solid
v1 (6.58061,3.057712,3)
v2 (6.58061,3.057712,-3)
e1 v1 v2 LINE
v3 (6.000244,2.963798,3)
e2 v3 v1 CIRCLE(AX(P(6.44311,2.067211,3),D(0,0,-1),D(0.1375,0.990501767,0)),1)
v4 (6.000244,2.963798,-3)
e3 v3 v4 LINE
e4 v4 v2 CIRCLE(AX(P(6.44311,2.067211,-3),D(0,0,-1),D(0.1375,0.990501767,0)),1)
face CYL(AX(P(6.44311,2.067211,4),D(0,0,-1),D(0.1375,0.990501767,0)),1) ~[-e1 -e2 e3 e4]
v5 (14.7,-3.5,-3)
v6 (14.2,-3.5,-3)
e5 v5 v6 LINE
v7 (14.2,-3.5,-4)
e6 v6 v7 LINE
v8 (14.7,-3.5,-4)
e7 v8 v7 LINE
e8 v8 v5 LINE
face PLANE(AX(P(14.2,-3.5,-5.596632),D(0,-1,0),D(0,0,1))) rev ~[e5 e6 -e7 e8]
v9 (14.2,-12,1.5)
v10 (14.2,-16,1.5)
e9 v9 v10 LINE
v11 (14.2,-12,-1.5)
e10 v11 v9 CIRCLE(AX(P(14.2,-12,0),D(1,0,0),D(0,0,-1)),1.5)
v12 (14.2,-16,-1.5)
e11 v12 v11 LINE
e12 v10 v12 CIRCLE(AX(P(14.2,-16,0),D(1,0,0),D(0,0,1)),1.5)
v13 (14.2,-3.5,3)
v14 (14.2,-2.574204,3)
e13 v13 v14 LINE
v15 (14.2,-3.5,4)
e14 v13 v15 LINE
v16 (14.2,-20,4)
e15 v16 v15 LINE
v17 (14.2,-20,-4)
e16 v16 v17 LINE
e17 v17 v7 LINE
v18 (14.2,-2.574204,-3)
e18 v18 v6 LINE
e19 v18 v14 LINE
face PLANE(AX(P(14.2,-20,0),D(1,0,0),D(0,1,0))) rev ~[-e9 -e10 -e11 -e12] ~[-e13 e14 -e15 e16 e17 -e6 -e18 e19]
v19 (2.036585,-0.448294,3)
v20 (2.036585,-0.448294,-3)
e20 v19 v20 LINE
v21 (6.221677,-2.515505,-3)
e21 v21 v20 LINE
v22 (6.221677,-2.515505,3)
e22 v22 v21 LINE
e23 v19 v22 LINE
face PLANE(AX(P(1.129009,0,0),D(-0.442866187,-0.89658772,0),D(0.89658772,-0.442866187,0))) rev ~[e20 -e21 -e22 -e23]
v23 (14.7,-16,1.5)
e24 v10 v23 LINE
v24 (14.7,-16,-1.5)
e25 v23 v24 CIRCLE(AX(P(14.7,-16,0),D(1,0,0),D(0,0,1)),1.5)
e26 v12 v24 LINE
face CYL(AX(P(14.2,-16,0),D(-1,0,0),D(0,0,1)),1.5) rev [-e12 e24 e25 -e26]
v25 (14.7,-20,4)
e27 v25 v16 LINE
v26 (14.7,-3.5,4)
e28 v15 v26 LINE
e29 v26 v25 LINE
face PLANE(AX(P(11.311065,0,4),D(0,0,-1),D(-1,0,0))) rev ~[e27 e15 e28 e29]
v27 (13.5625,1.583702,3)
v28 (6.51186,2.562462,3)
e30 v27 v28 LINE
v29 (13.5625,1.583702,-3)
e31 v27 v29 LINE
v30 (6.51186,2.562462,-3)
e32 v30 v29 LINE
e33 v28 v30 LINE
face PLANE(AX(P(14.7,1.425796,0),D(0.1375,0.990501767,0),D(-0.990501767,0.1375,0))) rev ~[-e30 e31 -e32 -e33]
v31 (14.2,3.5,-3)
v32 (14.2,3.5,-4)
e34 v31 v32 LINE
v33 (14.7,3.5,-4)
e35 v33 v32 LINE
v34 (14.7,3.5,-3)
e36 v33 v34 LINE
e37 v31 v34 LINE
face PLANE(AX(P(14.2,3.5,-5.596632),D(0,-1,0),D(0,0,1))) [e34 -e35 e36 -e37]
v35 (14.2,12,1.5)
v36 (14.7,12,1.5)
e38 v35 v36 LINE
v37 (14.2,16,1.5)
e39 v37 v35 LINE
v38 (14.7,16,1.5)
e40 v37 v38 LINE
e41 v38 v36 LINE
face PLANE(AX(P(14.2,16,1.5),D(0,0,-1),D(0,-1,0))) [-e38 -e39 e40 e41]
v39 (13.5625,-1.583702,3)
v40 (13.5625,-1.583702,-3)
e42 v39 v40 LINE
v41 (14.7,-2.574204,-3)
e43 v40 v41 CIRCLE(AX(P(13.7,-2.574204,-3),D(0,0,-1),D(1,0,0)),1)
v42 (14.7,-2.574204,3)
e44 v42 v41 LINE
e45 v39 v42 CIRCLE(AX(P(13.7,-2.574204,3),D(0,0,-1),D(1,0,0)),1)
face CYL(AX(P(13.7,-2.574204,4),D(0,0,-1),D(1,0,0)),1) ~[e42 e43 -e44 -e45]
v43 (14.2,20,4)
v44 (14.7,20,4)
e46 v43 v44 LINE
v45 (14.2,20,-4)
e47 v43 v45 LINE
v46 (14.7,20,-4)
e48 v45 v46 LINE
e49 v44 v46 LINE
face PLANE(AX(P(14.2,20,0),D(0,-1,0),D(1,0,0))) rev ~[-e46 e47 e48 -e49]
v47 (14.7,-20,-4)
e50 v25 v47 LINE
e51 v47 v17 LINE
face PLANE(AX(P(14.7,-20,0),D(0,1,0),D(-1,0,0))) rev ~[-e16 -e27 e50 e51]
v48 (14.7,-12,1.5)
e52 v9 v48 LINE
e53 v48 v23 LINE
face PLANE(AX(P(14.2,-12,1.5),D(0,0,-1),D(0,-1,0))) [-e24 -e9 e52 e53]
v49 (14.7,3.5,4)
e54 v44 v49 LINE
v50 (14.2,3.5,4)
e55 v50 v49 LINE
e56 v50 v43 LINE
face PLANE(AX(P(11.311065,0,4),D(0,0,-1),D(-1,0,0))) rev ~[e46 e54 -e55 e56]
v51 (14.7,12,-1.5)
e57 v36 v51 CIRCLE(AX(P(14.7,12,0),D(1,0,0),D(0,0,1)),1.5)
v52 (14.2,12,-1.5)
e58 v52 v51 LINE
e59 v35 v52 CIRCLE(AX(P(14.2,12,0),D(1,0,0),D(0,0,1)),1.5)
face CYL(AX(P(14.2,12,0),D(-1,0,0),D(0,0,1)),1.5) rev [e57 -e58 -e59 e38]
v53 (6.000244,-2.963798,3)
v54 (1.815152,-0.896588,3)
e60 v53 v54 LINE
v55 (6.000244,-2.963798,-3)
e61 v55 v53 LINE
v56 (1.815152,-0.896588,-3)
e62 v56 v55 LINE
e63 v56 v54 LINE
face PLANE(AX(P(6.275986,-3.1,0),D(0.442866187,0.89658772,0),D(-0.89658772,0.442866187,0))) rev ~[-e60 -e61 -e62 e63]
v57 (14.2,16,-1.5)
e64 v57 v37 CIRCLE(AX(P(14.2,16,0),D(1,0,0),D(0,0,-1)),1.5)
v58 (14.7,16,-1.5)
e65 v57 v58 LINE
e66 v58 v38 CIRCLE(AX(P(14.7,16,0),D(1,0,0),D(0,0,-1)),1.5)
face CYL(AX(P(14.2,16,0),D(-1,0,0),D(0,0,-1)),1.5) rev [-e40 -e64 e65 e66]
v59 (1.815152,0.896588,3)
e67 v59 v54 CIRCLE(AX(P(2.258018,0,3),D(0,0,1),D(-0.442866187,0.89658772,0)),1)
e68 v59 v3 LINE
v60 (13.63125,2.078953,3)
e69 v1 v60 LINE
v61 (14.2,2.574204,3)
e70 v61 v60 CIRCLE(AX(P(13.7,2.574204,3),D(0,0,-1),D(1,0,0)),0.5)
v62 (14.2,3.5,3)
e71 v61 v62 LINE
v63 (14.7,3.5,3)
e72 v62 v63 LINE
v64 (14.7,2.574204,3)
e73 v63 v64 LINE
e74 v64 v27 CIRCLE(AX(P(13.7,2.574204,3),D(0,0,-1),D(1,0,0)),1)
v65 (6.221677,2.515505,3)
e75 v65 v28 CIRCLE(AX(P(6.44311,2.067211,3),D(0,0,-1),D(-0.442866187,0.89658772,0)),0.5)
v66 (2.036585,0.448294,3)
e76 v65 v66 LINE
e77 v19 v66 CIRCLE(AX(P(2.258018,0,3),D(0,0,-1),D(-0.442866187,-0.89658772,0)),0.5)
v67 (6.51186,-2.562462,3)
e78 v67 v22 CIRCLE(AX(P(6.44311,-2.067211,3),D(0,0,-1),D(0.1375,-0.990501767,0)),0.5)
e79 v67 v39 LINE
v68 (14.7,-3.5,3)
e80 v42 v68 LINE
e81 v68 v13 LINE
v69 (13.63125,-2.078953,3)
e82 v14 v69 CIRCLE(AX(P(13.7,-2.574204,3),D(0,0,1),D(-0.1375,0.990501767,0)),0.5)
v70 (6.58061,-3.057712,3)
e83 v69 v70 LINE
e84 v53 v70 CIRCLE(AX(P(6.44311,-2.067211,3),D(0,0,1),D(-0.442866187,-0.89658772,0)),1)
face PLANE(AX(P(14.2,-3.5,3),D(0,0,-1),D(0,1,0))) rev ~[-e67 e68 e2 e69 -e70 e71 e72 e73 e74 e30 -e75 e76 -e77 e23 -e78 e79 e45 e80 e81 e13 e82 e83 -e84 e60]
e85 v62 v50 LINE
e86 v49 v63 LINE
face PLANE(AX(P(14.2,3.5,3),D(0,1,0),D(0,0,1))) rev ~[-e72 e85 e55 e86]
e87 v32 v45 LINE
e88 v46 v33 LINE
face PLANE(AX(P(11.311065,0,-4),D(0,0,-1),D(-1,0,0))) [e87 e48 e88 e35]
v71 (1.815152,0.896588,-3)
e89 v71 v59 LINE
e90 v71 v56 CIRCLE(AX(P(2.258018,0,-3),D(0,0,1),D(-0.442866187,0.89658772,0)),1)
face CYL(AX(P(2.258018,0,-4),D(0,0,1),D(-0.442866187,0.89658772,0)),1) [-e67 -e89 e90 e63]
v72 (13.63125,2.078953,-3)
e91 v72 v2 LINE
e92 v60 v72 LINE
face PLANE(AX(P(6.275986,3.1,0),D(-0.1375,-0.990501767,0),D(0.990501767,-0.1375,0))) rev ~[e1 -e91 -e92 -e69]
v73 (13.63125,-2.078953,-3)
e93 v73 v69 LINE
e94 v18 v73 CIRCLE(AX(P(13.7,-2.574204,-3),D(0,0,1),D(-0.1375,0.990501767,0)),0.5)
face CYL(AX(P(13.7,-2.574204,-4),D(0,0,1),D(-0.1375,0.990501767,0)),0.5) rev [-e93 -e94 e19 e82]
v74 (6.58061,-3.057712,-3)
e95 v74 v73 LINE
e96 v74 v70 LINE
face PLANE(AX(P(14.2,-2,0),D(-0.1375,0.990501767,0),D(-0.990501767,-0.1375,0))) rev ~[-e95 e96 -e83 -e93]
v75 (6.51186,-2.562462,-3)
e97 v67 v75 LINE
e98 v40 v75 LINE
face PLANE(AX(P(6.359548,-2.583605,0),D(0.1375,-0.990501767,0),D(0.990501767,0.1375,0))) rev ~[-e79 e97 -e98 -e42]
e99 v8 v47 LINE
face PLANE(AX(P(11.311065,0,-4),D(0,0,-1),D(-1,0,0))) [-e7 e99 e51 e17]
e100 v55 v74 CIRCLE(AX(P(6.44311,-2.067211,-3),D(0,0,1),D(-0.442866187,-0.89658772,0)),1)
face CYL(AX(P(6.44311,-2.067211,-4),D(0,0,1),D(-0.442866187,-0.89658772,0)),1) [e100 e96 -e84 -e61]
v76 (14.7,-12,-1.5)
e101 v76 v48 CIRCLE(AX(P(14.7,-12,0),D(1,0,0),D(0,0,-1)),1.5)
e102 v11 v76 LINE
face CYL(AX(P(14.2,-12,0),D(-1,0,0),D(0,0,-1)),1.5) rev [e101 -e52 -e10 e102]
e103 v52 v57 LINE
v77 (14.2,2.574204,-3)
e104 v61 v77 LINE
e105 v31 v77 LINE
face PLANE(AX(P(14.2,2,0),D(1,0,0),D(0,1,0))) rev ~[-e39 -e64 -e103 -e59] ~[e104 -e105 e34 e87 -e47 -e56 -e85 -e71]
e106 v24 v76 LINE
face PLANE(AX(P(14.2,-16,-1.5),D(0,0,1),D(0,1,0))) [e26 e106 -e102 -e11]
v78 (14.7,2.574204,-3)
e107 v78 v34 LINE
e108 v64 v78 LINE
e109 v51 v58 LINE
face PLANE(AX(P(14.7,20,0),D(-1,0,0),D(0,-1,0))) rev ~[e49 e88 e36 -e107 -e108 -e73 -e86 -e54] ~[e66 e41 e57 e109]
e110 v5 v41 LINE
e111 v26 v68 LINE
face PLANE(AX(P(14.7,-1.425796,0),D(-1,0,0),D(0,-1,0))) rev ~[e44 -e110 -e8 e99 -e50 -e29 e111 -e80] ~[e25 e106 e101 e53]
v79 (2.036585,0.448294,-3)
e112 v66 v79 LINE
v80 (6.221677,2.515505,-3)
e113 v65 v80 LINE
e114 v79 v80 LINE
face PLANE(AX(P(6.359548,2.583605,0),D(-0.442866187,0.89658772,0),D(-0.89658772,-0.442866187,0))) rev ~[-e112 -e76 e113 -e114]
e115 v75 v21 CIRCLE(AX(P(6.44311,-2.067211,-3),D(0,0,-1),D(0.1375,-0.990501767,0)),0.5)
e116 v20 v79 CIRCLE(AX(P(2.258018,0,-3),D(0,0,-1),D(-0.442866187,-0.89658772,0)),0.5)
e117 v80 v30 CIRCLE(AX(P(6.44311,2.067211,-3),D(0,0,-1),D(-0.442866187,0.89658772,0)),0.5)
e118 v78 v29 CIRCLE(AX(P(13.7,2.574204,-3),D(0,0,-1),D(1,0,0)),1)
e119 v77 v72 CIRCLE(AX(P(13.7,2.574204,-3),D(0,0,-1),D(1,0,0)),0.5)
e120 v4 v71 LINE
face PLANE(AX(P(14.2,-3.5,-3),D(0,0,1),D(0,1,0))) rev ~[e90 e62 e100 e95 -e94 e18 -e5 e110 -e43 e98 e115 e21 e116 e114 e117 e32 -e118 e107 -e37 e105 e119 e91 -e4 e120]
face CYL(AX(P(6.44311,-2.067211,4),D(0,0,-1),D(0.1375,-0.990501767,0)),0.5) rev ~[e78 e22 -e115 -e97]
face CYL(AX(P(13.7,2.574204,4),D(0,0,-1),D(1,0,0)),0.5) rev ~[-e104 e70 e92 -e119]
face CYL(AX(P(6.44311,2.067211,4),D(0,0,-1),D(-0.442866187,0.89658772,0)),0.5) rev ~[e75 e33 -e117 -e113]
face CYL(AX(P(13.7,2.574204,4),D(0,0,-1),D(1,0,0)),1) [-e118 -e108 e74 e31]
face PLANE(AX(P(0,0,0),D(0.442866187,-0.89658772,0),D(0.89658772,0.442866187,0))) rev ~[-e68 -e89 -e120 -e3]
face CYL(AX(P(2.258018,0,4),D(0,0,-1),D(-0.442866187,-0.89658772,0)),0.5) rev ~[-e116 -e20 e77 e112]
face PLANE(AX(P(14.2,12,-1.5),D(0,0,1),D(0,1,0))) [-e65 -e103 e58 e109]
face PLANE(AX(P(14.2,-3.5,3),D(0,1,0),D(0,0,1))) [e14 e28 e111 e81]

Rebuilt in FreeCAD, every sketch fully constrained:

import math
import FreeCAD as App
import Part
import Sketcher
from FreeCAD import Vector


def edges_at(feature, points):
    """Names of the edges that pass closest to the given points."""
    edges = feature.Shape.Edges
    near = lambda p: min(range(len(edges)), key=lambda i: edges[i].distToShape(Part.Vertex(*p))[0])
    return sorted({f"Edge{near(p) + 1}" for p in points})


def add_polygon(sketch, points):
    """Adds a closed chain of lines whose ends are joined by coincident constraints."""
    first, n = sketch.GeometryCount, len(points)
    for a, b in zip(points, points[1:] + points[:1]):
        sketch.addGeometry(Part.LineSegment(App.Vector(*a, 0), App.Vector(*b, 0)), False)
    for i in range(n):
        sketch.addConstraint(Sketcher.Constraint("Coincident", first + i, 2, first + (i + 1) % n, 1))

doc = App.newDocument("Part")
body = doc.addObject("PartDesign::Body", "Body")

# Sketch on XY plane
sketch1 = doc.addObject("Sketcher::SketchObject", "Sketch")
body.addObject(sketch1)
sketch1.AttachmentSupport = (doc.XY_Plane, [""])
sketch1.MapMode = "FlatFace"
add_polygon(sketch1, [(6.3, 3.1), (0, 0), (6.3, -3.1), (14.2, -2), (14.2, -20), (14.7, -20), (14.7, -1.4), (6.4, -2.6), (1.1, 0), (6.4, 2.6), (14.7, 1.4), (14.7, 20), (14.2, 20), (14.2, 2)])  # lines 0-13
sketch1.addConstraint([
    Sketcher.Constraint("Vertical", 3),
    Sketcher.Constraint("Horizontal", 4),
    Sketcher.Constraint("Vertical", 5),
    Sketcher.Constraint("Vertical", 10),
    Sketcher.Constraint("Horizontal", 11),
    Sketcher.Constraint("Vertical", 12),
    Sketcher.Constraint("Coincident", 0, 2, -1, 1),
    Sketcher.Constraint("Symmetric", 6, 2, 8, 2, -1),
    Sketcher.Constraint("Symmetric", 5, 2, 9, 2, -1),
    Sketcher.Constraint("Symmetric", 3, 2, 11, 2, -1),
    Sketcher.Constraint("Symmetric", 1, 2, 13, 2, -1),
    Sketcher.Constraint("PointOnObject", 7, 2, -1),
    Sketcher.Constraint("Parallel", 2, 6),
    Sketcher.Constraint("Parallel", 1, 7),
    Sketcher.Constraint("Parallel", 9, 13),
    Sketcher.Constraint("DistanceY", 3, 2, 3, 1, 18.0),
    Sketcher.Constraint("Distance", 2, 8.0),
    Sketcher.Constraint("DistanceX", 4, 1, 4, 2, 0.5),
    Sketcher.Constraint("DistanceY", 2, 2, -1, 1, 2.0),
    Sketcher.Constraint("DistanceY", 1, 2, -1, 1, 3.1),
    Sketcher.Constraint("DistanceX", -1, 1, 2, 2, 14.2),
    Sketcher.Constraint("DistanceY", 6, 2, 9, 2, 4.009401),
    Sketcher.Constraint("Distance", 6, 8.420431),
])
pad1 = doc.addObject("PartDesign::Pad", "Pad")
body.addObject(pad1)
pad1.Profile = sketch1
pad1.Length = 8
pad1.Midplane = True
doc.recompute()

fillet = doc.addObject("PartDesign::Fillet", "Fillet")
body.addObject(fillet)
fillet.Base = (pad1, edges_at(pad1, [
    (14.2, 2, 0),
    (6.36, 2.584, 0),
    (1.129, 0, 0),
    (6.36, -2.584, 0),
    (14.2, -2, 0),
]))
fillet.Radius = 0.5
doc.recompute()

fillet2 = doc.addObject("PartDesign::Fillet", "Fillet001")
body.addObject(fillet2)
fillet2.Base = (fillet, edges_at(fillet, [
    (0, 0, 0),
    (6.276, 3.1, 0),
    (14.7, 1.426, 0),
    (14.7, -1.426, 0),
    (6.276, -3.1, 0),
]))
fillet2.Radius = 1

# Sketch on YZ plane
sketch2 = doc.addObject("Sketcher::SketchObject", "Sketch001")
body.addObject(sketch2)
sketch2.AttachmentSupport = (doc.YZ_Plane, [""])
sketch2.MapMode = "FlatFace"
sketch2.AttachmentOffset = App.Placement(Vector(0, 0, 14.2), App.Rotation())
sketch2.addGeometry([
    Part.LineSegment(Vector(12, 1.5, 0), Vector(16, 1.5, 0)),  # 0
    Part.ArcOfCircle(Part.Circle(Vector(16, 0, 0), Vector(0, 0, 1), 1.5), math.radians(-90), math.radians(90)),  # 1
    Part.LineSegment(Vector(16, -1.5, 0), Vector(12, -1.5, 0)),  # 2
    Part.ArcOfCircle(Part.Circle(Vector(12, 0, 0), Vector(0, 0, 1), 1.5), math.radians(90), math.radians(270)),  # 3
    Part.LineSegment(Vector(-16, 1.5, 0), Vector(-12, 1.5, 0)),  # 4
    Part.ArcOfCircle(Part.Circle(Vector(-12, 0, 0), Vector(0, 0, 1), 1.5), math.radians(-90), math.radians(90)),  # 5
    Part.LineSegment(Vector(-12, -1.5, 0), Vector(-16, -1.5, 0)),  # 6
    Part.ArcOfCircle(Part.Circle(Vector(-16, 0, 0), Vector(0, 0, 1), 1.5), math.radians(90), math.radians(270)),  # 7
], False)
sketch2.addConstraint([
    Sketcher.Constraint("Tangent", 0, 2, 1, 2),
    Sketcher.Constraint("Tangent", 1, 1, 2, 1),
    Sketcher.Constraint("Tangent", 2, 2, 3, 2),
    Sketcher.Constraint("Tangent", 3, 1, 0, 1),
    Sketcher.Constraint("Tangent", 4, 2, 5, 2),
    Sketcher.Constraint("Tangent", 5, 1, 6, 1),
    Sketcher.Constraint("Tangent", 6, 2, 7, 2),
    Sketcher.Constraint("Tangent", 7, 1, 4, 1),
    Sketcher.Constraint("Horizontal", 0),
    Sketcher.Constraint("Horizontal", 2),
    Sketcher.Constraint("Horizontal", 4),
    Sketcher.Constraint("Horizontal", 6),
    Sketcher.Constraint("Equal", 3, 5),
    Sketcher.Constraint("Symmetric", 3, 3, 5, 3, -1, 1),
    Sketcher.Constraint("Symmetric", 1, 3, 7, 3, -2),
    Sketcher.Constraint("Radius", 1, 1.5),
    Sketcher.Constraint("DistanceX", 0, 1, 0, 2, 4.0),
    Sketcher.Constraint("DistanceX", -1, 1, 1, 3, 16.0),
])
pocket1 = doc.addObject("PartDesign::Pocket", "Pocket")
body.addObject(pocket1)
pocket1.Profile = sketch2
pocket1.Length = 0.5
pocket1.Reversed = True

# Sketch on YZ plane
sketch3 = doc.addObject("Sketcher::SketchObject", "Sketch002")
body.addObject(sketch3)
sketch3.AttachmentSupport = (doc.YZ_Plane, [""])
sketch3.MapMode = "FlatFace"
sketch3.AttachmentOffset = App.Placement(Vector(0, 0, 14.2), App.Rotation())
add_polygon(sketch3, [(3.5, 3), (-3.5, 3), (-3.5, 6.4), (3.5, 6.4)])  # lines 0-3
add_polygon(sketch3, [(3.5, -5.6), (-3.5, -5.6), (-3.5, -3), (3.5, -3)])  # lines 4-7
sketch3.addConstraint([
    Sketcher.Constraint("Horizontal", 0),
    Sketcher.Constraint("Vertical", 1),
    Sketcher.Constraint("Horizontal", 2),
    Sketcher.Constraint("Vertical", 3),
    Sketcher.Constraint("Horizontal", 4),
    Sketcher.Constraint("Vertical", 5),
    Sketcher.Constraint("Horizontal", 6),
    Sketcher.Constraint("Vertical", 7),
    Sketcher.Constraint("Symmetric", 3, 2, 5, 2, -1, 1),
    Sketcher.Constraint("Vertical", 1, 2, 4, 2),
    Sketcher.Constraint("Vertical", 3, 2, 6, 2),
    Sketcher.Constraint("DistanceX", 0, 2, 0, 1, 7.0),
    Sketcher.Constraint("DistanceY", -1, 1, 0, 2, 3.0),
    Sketcher.Constraint("DistanceY", 1, 1, 1, 2, 3.444181),
    Sketcher.Constraint("DistanceY", 5, 1, 5, 2, 2.596632),
])
pocket2 = doc.addObject("PartDesign::Pocket", "Pocket001")
body.addObject(pocket2)
pocket2.Profile = sketch3
pocket2.Length = 34
pocket2.Midplane = True

doc.recompute()
